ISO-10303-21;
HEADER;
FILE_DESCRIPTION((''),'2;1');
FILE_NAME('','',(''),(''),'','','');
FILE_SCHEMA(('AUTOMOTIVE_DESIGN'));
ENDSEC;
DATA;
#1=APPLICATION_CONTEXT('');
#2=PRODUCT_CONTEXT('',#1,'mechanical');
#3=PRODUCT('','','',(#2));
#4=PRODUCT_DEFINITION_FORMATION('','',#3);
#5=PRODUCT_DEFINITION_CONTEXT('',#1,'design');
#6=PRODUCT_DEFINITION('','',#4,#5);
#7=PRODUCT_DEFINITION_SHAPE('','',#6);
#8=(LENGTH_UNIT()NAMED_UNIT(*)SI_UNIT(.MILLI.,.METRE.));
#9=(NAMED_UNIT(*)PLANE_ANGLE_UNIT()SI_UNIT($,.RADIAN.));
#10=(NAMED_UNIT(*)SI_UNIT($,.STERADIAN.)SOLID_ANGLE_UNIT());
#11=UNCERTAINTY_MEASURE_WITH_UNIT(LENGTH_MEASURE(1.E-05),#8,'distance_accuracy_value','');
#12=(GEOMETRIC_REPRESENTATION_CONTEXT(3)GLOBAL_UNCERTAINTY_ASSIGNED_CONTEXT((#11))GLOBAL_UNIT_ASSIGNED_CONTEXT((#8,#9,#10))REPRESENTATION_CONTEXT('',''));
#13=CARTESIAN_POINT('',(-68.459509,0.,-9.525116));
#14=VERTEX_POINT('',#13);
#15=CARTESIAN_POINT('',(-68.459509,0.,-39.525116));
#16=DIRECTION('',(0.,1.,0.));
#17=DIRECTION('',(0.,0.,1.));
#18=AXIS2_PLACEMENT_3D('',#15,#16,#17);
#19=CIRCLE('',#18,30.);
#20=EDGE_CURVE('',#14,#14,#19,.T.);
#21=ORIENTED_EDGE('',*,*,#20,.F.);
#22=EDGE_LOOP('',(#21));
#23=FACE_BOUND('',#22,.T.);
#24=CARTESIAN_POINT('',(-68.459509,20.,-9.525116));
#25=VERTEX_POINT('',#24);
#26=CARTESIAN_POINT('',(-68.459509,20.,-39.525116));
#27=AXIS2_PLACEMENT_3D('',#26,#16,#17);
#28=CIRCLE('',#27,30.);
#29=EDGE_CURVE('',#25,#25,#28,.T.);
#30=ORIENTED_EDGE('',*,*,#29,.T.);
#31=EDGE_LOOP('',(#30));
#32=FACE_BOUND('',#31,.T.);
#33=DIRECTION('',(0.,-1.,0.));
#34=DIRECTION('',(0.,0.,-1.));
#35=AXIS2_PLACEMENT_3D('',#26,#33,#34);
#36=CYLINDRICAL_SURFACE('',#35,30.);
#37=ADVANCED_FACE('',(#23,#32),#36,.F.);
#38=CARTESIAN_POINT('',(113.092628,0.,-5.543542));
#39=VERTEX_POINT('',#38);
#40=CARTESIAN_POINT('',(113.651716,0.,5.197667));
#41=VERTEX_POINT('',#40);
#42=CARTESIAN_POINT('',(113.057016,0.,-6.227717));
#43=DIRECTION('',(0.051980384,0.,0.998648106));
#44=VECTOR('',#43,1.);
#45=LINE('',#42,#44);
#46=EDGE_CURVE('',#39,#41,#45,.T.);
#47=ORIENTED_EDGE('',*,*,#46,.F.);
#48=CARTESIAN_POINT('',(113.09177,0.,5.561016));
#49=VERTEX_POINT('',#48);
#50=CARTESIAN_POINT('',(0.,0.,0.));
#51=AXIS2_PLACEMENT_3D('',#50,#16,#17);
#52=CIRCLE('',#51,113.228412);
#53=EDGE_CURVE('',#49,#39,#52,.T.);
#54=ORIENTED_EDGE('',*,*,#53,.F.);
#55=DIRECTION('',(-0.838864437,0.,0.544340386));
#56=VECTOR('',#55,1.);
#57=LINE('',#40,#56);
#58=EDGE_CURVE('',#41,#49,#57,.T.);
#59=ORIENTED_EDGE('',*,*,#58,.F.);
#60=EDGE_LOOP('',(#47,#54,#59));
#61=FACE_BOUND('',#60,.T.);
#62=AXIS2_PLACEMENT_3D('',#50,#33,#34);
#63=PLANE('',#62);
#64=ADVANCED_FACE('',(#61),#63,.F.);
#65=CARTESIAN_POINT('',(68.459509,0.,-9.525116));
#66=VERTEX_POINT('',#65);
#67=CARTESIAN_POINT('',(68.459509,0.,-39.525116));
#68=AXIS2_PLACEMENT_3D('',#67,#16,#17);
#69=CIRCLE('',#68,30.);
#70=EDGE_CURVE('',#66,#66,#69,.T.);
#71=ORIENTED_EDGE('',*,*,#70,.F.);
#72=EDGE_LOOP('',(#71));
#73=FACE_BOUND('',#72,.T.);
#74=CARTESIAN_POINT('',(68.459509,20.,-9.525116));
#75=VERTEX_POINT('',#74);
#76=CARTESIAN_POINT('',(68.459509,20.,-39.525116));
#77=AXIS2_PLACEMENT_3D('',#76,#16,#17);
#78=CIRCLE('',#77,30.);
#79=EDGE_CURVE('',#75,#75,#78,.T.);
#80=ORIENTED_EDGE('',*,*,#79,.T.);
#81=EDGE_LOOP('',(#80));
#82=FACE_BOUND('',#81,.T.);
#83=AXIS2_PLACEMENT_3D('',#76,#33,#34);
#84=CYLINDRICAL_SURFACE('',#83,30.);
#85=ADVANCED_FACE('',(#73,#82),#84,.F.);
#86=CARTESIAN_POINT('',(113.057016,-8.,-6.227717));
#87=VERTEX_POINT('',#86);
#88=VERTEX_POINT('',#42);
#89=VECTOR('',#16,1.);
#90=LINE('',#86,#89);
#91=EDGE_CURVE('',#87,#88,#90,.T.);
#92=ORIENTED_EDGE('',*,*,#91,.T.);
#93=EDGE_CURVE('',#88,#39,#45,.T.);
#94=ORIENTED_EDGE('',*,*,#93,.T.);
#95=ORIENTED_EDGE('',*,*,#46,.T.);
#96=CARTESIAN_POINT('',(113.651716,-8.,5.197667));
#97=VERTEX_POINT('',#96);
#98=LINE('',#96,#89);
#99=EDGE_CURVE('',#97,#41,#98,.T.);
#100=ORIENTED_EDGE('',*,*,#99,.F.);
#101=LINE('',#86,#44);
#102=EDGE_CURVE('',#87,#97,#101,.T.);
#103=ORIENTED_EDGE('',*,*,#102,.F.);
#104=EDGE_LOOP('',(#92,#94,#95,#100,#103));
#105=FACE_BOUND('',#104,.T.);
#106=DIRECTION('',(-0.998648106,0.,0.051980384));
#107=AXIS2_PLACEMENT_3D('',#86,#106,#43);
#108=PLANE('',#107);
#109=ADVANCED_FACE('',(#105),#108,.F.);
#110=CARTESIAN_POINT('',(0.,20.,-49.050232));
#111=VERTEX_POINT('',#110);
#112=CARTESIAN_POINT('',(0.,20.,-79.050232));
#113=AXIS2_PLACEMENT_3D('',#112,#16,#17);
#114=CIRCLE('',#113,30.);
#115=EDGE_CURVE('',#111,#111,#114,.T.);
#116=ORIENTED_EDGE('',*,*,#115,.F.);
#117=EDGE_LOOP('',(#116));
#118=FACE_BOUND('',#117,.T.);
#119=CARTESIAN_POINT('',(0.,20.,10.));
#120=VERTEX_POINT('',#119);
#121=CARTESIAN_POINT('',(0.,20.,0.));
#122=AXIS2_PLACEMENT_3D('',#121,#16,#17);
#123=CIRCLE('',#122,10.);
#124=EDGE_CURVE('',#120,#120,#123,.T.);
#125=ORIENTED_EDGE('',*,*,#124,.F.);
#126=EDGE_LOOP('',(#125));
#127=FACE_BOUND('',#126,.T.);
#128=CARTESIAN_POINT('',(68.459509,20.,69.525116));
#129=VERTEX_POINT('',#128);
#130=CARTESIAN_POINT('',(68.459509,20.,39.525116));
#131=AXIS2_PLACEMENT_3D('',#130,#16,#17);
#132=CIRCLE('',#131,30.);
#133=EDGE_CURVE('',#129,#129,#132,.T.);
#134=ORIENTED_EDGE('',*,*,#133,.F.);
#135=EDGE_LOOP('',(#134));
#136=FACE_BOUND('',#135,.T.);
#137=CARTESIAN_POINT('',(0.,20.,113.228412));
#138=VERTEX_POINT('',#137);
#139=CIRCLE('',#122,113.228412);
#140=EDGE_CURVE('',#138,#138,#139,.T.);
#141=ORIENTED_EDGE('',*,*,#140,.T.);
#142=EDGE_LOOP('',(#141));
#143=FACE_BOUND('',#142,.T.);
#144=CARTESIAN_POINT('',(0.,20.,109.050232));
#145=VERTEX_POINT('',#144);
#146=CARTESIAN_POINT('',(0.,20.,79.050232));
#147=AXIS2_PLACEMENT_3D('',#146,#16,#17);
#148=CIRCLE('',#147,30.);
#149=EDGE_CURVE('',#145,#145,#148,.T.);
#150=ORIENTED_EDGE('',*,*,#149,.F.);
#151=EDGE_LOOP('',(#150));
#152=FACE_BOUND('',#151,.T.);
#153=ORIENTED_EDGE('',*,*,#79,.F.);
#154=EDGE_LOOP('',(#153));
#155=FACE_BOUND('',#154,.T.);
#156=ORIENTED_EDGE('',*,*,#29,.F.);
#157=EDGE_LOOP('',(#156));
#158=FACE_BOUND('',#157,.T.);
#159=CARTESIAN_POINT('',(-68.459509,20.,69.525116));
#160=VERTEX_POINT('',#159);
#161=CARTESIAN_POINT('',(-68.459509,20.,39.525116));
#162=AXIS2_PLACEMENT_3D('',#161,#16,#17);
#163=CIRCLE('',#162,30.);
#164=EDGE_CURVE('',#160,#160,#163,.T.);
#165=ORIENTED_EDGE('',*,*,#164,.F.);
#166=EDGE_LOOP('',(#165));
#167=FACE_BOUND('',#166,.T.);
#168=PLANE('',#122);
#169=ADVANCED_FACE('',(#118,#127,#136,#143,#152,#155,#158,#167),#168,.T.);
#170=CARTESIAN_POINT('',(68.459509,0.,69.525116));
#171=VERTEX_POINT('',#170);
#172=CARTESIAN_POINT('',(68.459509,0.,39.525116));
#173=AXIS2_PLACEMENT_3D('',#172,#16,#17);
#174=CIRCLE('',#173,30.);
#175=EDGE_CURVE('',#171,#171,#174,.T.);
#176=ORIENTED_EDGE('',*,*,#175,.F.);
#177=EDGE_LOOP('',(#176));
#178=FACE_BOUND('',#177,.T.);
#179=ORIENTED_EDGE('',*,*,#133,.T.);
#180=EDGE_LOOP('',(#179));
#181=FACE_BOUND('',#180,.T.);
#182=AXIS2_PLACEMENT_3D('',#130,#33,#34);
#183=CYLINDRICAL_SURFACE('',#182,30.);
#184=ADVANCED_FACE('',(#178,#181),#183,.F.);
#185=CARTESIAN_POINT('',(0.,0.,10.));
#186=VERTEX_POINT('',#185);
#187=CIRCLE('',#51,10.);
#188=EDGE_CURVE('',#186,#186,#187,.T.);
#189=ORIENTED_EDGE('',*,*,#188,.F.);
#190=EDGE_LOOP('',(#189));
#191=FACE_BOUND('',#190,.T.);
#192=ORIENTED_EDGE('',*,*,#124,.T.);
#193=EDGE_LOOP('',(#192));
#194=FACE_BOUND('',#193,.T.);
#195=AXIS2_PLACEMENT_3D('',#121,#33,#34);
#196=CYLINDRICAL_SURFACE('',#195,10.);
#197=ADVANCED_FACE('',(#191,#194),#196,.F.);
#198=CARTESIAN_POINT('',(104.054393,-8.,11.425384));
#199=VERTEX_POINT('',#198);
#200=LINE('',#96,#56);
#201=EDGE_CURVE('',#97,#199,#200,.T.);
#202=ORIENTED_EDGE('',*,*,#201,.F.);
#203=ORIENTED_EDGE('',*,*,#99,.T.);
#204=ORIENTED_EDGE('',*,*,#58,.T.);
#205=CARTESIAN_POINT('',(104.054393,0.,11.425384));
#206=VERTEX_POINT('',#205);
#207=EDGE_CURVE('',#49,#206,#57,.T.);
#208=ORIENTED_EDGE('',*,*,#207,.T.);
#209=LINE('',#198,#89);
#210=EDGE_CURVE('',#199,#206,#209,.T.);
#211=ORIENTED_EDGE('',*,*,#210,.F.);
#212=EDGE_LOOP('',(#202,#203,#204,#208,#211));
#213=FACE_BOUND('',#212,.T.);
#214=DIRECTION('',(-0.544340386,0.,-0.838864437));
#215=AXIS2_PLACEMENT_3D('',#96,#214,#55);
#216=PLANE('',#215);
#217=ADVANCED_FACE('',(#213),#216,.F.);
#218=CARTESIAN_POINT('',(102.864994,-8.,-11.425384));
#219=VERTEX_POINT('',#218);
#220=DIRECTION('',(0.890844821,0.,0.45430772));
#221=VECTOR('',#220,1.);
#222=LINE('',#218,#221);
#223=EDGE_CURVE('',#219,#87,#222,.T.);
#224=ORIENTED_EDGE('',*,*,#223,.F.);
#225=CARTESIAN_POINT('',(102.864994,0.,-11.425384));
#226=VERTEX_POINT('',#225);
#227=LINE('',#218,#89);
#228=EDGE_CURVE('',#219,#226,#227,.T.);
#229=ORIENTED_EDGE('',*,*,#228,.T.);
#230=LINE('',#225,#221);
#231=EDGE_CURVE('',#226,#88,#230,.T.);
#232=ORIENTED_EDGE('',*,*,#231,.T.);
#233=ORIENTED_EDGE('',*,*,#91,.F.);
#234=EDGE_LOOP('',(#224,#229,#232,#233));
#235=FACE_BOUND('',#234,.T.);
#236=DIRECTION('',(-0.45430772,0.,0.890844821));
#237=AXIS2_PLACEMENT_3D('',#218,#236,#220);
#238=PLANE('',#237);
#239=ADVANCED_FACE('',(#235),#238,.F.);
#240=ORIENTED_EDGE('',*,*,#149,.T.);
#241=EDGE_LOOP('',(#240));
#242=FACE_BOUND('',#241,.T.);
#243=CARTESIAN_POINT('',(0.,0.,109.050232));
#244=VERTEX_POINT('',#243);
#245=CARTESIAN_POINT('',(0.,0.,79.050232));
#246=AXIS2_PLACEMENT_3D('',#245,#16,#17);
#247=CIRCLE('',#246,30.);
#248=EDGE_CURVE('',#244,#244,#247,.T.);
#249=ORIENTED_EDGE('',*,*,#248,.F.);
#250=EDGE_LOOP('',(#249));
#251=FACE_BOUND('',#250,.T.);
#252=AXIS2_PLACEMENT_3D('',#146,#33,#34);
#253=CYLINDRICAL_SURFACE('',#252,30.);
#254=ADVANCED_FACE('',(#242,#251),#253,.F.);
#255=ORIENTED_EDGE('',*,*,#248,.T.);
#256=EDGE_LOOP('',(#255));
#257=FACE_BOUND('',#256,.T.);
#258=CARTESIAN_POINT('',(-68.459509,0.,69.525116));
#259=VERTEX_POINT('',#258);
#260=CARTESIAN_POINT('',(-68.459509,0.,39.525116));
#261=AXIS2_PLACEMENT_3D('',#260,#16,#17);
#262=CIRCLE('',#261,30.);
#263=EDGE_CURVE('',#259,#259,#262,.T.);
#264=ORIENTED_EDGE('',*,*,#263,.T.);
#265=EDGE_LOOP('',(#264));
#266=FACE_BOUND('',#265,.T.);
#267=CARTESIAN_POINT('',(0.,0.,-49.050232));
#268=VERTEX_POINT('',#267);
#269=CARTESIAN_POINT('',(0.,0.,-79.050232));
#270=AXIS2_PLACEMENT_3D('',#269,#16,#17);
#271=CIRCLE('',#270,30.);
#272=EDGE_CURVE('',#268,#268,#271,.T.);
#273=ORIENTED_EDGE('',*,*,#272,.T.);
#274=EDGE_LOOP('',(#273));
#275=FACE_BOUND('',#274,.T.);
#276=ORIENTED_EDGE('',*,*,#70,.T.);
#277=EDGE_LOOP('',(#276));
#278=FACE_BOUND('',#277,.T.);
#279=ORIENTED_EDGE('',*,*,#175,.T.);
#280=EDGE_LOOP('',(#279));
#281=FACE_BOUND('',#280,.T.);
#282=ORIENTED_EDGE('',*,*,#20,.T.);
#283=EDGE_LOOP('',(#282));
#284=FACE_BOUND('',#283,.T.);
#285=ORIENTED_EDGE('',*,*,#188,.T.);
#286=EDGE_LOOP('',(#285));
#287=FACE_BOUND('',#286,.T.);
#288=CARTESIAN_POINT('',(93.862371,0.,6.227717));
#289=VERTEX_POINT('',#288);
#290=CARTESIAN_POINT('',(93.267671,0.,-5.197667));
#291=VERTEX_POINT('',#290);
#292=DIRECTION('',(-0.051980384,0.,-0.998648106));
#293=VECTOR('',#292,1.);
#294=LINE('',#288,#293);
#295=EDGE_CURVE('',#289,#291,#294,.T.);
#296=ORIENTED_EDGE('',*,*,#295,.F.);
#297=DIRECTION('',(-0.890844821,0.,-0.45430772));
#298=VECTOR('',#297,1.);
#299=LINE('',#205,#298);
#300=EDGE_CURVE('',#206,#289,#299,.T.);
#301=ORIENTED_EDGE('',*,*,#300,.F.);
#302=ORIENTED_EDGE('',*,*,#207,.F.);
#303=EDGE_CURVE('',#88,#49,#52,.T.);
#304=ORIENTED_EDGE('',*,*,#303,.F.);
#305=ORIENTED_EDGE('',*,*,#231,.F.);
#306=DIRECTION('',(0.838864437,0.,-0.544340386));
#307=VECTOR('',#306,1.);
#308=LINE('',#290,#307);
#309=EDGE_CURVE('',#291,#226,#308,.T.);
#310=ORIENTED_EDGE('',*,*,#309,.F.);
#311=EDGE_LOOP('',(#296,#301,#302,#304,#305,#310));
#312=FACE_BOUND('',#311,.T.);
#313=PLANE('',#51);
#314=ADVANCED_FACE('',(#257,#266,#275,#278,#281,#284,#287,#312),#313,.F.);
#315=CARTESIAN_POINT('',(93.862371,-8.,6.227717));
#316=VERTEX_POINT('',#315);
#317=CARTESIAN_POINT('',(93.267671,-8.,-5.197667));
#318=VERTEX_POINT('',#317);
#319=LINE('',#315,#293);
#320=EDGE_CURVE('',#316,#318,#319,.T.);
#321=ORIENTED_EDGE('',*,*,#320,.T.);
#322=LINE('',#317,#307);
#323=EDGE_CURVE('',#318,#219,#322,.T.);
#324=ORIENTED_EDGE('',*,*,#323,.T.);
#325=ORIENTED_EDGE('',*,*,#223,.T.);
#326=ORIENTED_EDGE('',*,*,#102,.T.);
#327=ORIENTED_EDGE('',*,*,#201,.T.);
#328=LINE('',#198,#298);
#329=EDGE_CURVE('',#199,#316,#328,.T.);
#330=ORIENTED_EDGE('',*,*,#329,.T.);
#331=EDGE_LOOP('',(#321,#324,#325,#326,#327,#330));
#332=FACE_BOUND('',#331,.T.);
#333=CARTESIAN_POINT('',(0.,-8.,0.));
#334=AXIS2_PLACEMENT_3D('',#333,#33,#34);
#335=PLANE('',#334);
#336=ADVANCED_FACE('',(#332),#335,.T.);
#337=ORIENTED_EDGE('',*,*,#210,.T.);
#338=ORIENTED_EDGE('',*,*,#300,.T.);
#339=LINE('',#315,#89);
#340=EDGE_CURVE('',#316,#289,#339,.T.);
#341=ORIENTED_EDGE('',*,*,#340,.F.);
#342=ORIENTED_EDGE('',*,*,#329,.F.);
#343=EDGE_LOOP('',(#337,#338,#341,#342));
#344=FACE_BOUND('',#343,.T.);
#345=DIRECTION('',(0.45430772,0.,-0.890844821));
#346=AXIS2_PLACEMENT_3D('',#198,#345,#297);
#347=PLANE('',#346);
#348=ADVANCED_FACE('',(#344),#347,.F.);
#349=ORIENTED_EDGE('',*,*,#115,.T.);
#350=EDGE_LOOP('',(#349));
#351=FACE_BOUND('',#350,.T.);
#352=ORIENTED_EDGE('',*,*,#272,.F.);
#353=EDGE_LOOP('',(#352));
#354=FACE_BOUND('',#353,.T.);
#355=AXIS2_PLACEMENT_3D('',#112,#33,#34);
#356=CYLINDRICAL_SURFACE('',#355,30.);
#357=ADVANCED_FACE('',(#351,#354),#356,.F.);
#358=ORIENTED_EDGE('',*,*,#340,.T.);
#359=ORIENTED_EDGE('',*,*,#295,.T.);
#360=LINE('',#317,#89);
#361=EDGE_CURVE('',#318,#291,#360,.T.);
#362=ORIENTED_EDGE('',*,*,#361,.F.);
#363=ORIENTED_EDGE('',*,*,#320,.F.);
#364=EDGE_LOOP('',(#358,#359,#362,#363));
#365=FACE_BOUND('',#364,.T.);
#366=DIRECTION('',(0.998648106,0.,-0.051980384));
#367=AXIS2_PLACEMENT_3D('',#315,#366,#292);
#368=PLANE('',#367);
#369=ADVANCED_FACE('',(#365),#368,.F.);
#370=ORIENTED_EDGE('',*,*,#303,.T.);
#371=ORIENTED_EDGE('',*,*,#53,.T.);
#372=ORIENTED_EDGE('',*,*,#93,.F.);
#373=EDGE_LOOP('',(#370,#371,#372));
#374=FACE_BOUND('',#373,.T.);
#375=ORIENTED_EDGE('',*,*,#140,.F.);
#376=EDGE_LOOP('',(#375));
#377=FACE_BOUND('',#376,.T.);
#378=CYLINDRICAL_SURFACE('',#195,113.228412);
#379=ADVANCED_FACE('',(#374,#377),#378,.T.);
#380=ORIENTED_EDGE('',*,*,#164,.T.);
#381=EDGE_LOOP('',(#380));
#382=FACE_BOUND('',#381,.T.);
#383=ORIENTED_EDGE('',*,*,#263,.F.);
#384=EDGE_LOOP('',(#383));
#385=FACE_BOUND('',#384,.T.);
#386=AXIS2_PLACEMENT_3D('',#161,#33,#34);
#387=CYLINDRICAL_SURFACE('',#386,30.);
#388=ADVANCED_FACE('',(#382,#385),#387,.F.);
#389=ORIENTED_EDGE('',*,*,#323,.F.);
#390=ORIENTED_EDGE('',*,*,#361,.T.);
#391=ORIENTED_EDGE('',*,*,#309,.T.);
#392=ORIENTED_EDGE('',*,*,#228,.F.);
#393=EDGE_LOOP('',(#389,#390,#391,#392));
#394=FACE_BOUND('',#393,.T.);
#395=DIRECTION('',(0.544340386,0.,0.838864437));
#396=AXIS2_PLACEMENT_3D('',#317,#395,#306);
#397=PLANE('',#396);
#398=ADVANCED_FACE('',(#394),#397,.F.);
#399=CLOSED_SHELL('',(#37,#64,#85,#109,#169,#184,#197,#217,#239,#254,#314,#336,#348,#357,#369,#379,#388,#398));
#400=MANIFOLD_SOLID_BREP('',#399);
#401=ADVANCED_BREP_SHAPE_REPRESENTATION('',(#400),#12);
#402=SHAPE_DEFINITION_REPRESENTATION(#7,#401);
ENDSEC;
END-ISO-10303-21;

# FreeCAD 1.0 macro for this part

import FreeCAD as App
import Part
import Sketcher

doc = App.newDocument("Part")
params = doc.addObject("Spreadsheet::Sheet", "Params")
for row, (alias, value) in enumerate([
    ("sketch1_diameter", "60 mm"),
    ("sketch1_diameter2", "20 mm"),
    ("pad1_length", "20 mm"),
    ("pad2_length", "8 mm"),
], start=1):
    params.set(f"A{row}", alias)
    params.set(f"B{row}", "=" + value)
    params.setAlias(f"B{row}", alias)

body = doc.addObject("PartDesign::Body", "Body")

# Sketch on XZ plane
sketch1 = doc.addObject("Sketcher::SketchObject", "Sketch")
body.addObject(sketch1)
sketch1.AttachmentSupport = (doc.XZ_Plane, [""])
sketch1.MapMode = "FlatFace"
sketch1.addGeometry([
    Part.Circle(App.Vector(0, 0, 0), App.Vector(0, 0, 1), 113),  # 0
    Part.Circle(App.Vector(-68, -40, 0), App.Vector(0, 0, 1), 30),  # 1
    Part.Circle(App.Vector(0, -79, 0), App.Vector(0, 0, 1), 30),  # 2
    Part.Circle(App.Vector(-68, 40, 0), App.Vector(0, 0, 1), 30),  # 3
    Part.Circle(App.Vector(0, 0, 0), App.Vector(0, 0, 1), 10),  # 4
    Part.Circle(App.Vector(68, -40, 0), App.Vector(0, 0, 1), 30),  # 5
    Part.Circle(App.Vector(0, 79, 0), App.Vector(0, 0, 1), 30),  # 6
    Part.Circle(App.Vector(68, 40, 0), App.Vector(0, 0, 1), 30),  # 7
], False)
sketch1.addConstraint([
    Sketcher.Constraint("Coincident", 0, 3, -1, 1),
    Sketcher.Constraint("Coincident", 4, 3, -1, 1),
    Sketcher.Constraint("Equal", 1, 2),
    Sketcher.Constraint("Equal", 2, 3),
    Sketcher.Constraint("Equal", 3, 5),
    Sketcher.Constraint("Equal", 5, 6),
    Sketcher.Constraint("Equal", 6, 7),
    Sketcher.Constraint("Symmetric", 3, 3, 5, 3, -1, 1),
    Sketcher.Constraint("Symmetric", 2, 3, 6, 3, -1, 1),
    Sketcher.Constraint("Symmetric", 1, 3, 7, 3, -1, 1),
    Sketcher.Constraint("Symmetric", 1, 3, 5, 3, -2),
    Sketcher.Constraint("PointOnObject", 2, 3, -2),
    Sketcher.Constraint("Diameter", 1, 60.0),
    Sketcher.Constraint("Diameter", 4, 20.0),
    Sketcher.Constraint("Diameter", 0, 226.456825),
    Sketcher.Constraint("DistanceX", 1, 3, -1, 1, 68.459509),
    Sketcher.Constraint("DistanceY", 2, 3, 3, 3, 118.575348),
    Sketcher.Constraint("DistanceY", 1, 3, -1, 1, 39.525116),
])
sketch1.setExpression("Constraints[12]", "Params.sketch1_diameter")
sketch1.setExpression("Constraints[13]", "Params.sketch1_diameter2")
pad1 = doc.addObject("PartDesign::Pad", "Pad")
body.addObject(pad1)
pad1.Profile = sketch1
pad1.setExpression("Length", "Params.pad1_length")
pad1.Reversed = True

# Sketch on XZ plane
sketch2 = doc.addObject("Sketcher::SketchObject", "Sketch001")
body.addObject(sketch2)
sketch2.AttachmentSupport = (doc.XZ_Plane, [""])
sketch2.MapMode = "FlatFace"
sketch2.addGeometry([
    Part.LineSegment(App.Vector(113, -6, 0), App.Vector(114, 5, 0)),  # 0
    Part.LineSegment(App.Vector(114, 5, 0), App.Vector(104, 11, 0)),  # 1
    Part.LineSegment(App.Vector(104, 11, 0), App.Vector(94, 6, 0)),  # 2
    Part.LineSegment(App.Vector(94, 6, 0), App.Vector(93, -5, 0)),  # 3
    Part.LineSegment(App.Vector(93, -5, 0), App.Vector(103, -11, 0)),  # 4
    Part.LineSegment(App.Vector(103, -11, 0), App.Vector(113, -6, 0)),  # 5
], False)
sketch2.addConstraint([
    Sketcher.Constraint("Coincident", 0, 2, 1, 1),
    Sketcher.Constraint("Coincident", 1, 2, 2, 1),
    Sketcher.Constraint("Coincident", 2, 2, 3, 1),
    Sketcher.Constraint("Coincident", 3, 2, 4, 1),
    Sketcher.Constraint("Coincident", 4, 2, 5, 1),
    Sketcher.Constraint("Coincident", 5, 2, 0, 1),
    Sketcher.Constraint("Parallel", 0, 3),
    Sketcher.Constraint("Parallel", 1, 4),
    Sketcher.Constraint("Parallel", 2, 5),
    Sketcher.Constraint("Equal", 0, 1),
    Sketcher.Constraint("Equal", 1, 2),
    Sketcher.Constraint("Equal", 2, 3),
    Sketcher.Constraint("DistanceX", 3, 2, 2, 2, 0.5947),
    Sketcher.Constraint("DistanceY", 4, 2, 2, 2, 17.653101),
    Sketcher.Constraint("DistanceX", 4, 2, 1, 2, 1.1894),
    Sketcher.Constraint("Distance", 0, 11.440851),
    Sketcher.Constraint("DistanceX", -1, 1, 2, 2, 93.862371),
    Sketcher.Constraint("DistanceY", -1, 1, 0, 2, 5.197667),
])
pad2 = doc.addObject("PartDesign::Pad", "Pad001")
body.addObject(pad2)
pad2.Profile = sketch2
pad2.setExpression("Length", "Params.pad2_length")

doc.recompute()
